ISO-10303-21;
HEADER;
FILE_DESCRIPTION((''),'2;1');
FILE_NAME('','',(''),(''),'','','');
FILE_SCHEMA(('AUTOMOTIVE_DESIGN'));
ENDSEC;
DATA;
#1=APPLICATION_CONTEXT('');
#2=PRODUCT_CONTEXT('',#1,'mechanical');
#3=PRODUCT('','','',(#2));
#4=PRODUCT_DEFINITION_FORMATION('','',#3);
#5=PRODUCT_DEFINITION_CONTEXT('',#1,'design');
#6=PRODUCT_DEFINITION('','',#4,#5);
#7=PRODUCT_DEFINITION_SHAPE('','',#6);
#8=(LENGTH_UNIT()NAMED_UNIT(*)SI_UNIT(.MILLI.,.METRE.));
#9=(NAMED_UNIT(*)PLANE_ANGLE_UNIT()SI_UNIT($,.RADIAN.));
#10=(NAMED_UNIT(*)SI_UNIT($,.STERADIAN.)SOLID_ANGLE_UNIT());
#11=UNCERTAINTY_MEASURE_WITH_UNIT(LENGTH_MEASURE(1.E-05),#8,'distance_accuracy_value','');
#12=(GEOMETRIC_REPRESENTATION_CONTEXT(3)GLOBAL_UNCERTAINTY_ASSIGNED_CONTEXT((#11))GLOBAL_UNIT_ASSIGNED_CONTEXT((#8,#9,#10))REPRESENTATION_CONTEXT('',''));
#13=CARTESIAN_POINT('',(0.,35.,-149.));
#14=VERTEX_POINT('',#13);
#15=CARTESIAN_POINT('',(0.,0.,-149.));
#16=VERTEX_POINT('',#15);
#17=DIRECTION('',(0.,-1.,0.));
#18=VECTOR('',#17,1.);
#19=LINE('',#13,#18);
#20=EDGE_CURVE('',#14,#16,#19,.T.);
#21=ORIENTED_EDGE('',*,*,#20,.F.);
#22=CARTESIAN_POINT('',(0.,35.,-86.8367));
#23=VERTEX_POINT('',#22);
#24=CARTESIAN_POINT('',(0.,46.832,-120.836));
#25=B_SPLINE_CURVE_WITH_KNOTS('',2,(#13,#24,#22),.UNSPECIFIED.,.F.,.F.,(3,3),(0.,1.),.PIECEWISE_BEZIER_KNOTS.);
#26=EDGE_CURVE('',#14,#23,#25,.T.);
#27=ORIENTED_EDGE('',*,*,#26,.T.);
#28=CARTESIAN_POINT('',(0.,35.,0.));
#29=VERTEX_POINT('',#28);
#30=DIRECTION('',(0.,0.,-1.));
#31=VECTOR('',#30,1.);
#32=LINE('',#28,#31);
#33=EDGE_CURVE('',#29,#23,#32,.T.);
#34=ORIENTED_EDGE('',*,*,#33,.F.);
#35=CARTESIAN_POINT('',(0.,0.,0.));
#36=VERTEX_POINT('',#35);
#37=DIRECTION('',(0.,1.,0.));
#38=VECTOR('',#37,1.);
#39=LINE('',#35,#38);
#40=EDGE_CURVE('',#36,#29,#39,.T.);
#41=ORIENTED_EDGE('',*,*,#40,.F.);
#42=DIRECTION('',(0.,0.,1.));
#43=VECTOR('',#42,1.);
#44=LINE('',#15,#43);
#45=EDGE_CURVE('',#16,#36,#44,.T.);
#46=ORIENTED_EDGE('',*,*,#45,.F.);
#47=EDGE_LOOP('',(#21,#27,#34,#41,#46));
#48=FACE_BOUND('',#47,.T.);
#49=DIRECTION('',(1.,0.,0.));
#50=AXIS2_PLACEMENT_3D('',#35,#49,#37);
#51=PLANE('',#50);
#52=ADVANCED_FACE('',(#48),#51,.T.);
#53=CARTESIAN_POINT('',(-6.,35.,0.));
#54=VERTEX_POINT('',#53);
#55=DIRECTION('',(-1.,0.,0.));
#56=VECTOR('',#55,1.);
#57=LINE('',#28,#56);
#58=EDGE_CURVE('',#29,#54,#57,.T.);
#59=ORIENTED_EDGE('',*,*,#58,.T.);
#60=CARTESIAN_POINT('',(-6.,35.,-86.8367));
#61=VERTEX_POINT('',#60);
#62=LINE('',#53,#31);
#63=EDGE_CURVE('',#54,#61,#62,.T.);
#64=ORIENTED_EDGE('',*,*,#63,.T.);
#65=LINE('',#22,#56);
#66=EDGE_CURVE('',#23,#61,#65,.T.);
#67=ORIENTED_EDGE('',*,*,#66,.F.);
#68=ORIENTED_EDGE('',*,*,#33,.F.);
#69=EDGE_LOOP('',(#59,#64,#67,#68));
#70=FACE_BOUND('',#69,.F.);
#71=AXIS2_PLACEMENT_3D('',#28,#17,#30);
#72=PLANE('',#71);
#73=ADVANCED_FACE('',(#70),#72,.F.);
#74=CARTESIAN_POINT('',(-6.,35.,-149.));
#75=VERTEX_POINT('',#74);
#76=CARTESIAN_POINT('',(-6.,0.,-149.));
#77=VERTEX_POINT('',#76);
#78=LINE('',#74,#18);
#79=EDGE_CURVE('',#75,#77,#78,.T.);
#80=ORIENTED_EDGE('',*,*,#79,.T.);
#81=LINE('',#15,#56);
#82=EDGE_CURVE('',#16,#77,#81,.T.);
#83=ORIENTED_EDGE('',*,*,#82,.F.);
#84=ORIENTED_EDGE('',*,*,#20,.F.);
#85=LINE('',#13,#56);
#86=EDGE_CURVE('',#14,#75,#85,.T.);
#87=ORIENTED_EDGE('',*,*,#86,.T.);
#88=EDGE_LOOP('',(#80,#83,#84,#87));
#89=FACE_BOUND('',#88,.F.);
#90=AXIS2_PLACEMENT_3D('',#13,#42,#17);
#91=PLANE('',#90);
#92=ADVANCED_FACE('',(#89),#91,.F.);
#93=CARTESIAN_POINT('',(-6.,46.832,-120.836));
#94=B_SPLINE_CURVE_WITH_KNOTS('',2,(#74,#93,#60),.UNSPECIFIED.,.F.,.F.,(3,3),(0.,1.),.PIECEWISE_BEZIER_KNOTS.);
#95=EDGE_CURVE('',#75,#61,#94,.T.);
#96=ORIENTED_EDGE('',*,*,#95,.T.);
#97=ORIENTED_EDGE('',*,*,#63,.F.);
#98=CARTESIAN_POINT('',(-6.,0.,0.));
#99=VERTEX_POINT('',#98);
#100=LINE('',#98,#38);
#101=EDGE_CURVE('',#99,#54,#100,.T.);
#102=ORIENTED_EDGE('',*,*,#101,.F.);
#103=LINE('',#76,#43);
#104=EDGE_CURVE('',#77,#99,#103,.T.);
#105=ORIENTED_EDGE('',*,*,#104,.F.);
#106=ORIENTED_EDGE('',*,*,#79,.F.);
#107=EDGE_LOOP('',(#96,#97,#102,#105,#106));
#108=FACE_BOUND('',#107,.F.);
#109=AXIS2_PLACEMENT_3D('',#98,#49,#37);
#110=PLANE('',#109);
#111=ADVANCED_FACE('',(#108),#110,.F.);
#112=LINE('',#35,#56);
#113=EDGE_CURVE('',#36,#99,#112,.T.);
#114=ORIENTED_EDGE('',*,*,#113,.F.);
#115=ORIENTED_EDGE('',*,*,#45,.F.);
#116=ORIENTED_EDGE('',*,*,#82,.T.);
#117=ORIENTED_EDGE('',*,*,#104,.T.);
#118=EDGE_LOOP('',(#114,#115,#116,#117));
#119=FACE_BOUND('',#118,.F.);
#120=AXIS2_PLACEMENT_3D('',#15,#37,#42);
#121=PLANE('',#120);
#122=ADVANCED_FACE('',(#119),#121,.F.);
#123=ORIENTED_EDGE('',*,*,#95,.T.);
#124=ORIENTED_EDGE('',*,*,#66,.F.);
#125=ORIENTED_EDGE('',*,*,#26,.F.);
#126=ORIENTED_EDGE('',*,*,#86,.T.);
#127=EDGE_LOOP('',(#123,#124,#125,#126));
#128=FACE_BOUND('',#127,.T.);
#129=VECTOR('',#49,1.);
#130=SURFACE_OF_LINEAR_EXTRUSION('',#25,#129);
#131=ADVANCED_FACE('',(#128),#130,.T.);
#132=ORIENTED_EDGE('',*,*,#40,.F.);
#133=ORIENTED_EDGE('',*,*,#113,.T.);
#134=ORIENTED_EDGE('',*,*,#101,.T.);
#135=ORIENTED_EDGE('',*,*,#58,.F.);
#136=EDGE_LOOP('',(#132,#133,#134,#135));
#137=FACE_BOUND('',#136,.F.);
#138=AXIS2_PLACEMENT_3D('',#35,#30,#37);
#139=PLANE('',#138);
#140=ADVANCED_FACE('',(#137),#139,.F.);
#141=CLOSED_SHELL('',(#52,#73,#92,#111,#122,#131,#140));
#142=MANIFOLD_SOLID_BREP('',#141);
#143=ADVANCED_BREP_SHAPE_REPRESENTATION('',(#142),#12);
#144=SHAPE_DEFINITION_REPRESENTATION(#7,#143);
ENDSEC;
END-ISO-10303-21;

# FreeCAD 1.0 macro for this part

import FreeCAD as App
import Part
import Sketcher
from FreeCAD import Vector

doc = App.newDocument("Part")
body = doc.addObject("PartDesign::Body", "Body")

sketch1 = doc.addObject("Sketcher::SketchObject", "Sketch")
body.addObject(sketch1)
sketch1.AttachmentSupport = (doc.YZ_Plane, [""])
sketch1.MapMode = "FlatFace"
sketch1.addGeometry([
    Part.LineSegment(Vector(35, 0, 0), Vector(0, 0, 0)),
    Part.LineSegment(Vector(0, 0, 0), Vector(0, -149, 0)),
    Part.LineSegment(Vector(0, -149, 0), Vector(35, -149, 0)),
    Part.BSplineCurve([Vector(35, -149, 0), Vector(46.832, -120.836, 0), Vector(35, -86.8367, 0)], [3, 3], [0, 1], False, 2, [1, 1, 1], False),
    Part.LineSegment(Vector(35, -86.8367, 0), Vector(35, 0, 0)),
], False)
sketch1.addConstraint([
    Sketcher.Constraint("Block", 3),
    Sketcher.Constraint("Coincident", 0, 2, 1, 1),
    Sketcher.Constraint("Coincident", 1, 2, 2, 1),
    Sketcher.Constraint("Coincident", 2, 2, 3, 1),
    Sketcher.Constraint("Coincident", 3, 2, 4, 1),
    Sketcher.Constraint("Coincident", 4, 2, 0, 1),
    Sketcher.Constraint("Horizontal", 0),
    Sketcher.Constraint("Vertical", 1),
    Sketcher.Constraint("Horizontal", 2),
    Sketcher.Constraint("Vertical", 4),
    Sketcher.Constraint("Coincident", 0, 2, -1, 1),
])
pad1 = doc.addObject("PartDesign::Pad", "Pad")
body.addObject(pad1)
pad1.Profile = sketch1
pad1.Length = 6
pad1.Reversed = True

doc.recompute()
